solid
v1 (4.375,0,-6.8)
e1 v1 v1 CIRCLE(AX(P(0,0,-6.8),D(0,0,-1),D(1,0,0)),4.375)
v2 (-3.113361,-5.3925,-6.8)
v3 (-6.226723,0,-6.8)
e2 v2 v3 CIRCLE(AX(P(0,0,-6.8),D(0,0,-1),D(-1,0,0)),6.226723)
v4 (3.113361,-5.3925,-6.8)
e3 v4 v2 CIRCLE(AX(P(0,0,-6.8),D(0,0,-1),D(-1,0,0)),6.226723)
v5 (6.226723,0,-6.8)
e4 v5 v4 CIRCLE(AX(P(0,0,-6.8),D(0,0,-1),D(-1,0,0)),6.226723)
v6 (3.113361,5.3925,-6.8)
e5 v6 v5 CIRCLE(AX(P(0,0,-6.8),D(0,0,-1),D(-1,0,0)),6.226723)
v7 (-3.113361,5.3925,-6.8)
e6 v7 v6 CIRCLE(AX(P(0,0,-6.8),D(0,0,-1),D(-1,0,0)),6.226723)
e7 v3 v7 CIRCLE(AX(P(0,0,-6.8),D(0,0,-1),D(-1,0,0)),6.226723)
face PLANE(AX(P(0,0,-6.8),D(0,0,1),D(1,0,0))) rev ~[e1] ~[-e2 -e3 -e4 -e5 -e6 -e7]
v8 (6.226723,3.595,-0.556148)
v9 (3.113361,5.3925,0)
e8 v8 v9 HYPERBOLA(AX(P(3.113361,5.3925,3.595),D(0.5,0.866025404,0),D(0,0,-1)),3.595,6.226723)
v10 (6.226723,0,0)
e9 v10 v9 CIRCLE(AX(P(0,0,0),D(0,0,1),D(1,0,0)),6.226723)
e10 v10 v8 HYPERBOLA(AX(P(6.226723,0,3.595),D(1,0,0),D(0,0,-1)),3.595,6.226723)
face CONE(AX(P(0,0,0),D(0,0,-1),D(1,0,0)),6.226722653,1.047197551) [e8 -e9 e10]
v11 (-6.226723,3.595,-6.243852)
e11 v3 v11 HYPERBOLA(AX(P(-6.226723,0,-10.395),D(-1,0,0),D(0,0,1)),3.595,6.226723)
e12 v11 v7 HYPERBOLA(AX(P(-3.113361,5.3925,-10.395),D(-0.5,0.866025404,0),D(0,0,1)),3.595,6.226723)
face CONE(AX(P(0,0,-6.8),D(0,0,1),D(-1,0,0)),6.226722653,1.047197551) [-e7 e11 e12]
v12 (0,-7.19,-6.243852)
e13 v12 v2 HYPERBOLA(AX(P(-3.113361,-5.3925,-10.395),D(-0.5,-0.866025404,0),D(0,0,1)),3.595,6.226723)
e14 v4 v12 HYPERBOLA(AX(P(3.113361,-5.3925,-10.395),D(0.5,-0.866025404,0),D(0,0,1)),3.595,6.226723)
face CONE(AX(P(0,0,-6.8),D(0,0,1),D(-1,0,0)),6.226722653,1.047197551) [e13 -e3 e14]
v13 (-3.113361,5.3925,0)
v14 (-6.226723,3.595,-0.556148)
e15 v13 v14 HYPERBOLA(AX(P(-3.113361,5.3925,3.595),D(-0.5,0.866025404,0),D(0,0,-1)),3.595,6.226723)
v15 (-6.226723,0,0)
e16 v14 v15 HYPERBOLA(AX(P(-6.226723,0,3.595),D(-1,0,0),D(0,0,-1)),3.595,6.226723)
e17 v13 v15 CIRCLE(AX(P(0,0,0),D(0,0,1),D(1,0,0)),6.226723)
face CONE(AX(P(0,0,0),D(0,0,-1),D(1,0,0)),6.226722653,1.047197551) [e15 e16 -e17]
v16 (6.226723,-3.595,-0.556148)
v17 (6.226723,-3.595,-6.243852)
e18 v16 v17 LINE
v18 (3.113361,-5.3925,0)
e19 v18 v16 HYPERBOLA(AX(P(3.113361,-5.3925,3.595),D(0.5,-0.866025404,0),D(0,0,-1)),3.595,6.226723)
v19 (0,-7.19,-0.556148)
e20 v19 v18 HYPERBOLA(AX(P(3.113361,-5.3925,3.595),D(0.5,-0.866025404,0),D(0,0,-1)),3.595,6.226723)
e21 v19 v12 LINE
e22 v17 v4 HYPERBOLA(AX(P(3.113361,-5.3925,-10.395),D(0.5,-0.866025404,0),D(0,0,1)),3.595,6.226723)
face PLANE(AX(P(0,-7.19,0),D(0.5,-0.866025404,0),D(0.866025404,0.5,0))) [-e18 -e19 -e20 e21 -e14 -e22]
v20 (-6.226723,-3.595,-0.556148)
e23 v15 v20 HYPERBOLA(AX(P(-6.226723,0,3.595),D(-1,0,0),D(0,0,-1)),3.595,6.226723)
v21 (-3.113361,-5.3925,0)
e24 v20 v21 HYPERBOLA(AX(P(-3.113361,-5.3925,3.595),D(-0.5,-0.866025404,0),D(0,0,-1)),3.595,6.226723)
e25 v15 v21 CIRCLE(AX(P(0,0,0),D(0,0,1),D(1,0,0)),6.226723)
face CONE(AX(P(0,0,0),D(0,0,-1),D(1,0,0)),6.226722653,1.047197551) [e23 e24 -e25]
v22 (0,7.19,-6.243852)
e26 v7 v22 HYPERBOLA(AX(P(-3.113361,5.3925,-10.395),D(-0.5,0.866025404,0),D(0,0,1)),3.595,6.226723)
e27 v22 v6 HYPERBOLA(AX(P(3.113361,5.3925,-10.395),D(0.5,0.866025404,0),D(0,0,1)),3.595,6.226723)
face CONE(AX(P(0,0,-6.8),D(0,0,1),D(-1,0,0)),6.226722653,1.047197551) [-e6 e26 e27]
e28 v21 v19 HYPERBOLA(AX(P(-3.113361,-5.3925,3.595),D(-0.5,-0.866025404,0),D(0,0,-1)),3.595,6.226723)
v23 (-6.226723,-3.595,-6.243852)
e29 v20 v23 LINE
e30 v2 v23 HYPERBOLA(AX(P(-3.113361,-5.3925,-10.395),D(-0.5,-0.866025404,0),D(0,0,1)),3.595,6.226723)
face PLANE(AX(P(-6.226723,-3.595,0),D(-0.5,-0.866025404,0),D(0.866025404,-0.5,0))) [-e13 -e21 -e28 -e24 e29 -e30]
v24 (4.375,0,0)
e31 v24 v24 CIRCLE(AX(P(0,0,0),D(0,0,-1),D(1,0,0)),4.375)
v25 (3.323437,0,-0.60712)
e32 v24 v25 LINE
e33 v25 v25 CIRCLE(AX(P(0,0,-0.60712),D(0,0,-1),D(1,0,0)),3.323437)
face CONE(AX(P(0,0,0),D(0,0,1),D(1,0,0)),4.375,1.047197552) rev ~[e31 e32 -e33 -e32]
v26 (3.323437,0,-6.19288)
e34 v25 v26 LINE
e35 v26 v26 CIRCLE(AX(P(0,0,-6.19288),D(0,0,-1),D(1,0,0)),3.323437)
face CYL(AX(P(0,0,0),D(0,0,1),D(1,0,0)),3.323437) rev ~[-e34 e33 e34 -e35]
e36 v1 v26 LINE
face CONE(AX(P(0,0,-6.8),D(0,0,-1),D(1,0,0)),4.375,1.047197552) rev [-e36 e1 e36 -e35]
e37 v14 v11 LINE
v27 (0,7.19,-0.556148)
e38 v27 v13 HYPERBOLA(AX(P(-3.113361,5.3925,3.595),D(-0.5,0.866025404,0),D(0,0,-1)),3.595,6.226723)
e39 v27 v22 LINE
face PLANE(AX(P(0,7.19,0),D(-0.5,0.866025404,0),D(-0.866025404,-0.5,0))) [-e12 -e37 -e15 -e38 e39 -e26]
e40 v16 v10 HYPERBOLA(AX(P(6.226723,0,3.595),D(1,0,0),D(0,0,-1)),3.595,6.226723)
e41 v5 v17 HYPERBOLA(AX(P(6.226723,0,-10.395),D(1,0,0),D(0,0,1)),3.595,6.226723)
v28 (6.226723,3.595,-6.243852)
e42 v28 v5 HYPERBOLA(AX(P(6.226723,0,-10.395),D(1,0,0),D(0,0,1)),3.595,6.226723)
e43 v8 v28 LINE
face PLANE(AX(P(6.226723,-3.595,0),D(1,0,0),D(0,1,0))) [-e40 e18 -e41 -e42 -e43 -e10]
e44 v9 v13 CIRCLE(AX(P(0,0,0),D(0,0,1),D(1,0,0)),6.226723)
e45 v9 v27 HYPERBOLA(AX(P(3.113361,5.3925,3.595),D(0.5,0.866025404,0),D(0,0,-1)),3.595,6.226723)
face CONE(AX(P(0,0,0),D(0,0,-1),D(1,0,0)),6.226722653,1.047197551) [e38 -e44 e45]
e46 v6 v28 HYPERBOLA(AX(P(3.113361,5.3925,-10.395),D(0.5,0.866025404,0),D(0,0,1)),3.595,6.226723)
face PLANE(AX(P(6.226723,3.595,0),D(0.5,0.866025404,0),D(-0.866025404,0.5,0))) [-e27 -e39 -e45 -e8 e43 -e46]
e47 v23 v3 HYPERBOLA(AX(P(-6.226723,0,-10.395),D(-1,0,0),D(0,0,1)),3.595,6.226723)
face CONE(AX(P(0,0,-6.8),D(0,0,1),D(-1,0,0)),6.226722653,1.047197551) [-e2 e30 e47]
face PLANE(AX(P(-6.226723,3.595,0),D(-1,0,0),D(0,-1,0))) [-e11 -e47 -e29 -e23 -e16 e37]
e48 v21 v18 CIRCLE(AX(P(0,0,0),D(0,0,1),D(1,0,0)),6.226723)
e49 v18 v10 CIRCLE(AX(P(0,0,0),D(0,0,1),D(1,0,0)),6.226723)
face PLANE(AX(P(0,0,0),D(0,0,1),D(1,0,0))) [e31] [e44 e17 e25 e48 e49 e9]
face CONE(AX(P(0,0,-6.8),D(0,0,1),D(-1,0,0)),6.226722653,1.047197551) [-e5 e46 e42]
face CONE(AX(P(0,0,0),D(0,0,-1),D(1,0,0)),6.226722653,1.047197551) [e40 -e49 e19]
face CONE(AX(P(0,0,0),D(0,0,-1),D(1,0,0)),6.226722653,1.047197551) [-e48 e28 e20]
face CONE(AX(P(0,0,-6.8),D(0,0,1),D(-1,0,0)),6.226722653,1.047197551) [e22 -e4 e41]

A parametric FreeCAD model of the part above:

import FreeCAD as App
import Part
import Sketcher
from FreeCAD import Vector
Q = App.Units.Quantity


def faces_at(feature, points):
    """Names of the faces that lie closest to the given points."""
    faces = feature.Shape.Faces
    near = lambda p: min(range(len(faces)), key=lambda i: faces[i].distToShape(Part.Vertex(*p))[0])
    return sorted({f"Face{near(p) + 1}" for p in points})

doc = App.newDocument("Part")
params = doc.addObject("Spreadsheet::Sheet", "Params")
for row, (alias, value) in enumerate([
    ("sketch1_height", "7.19 mm"),
    ("sketch1_length", "7.19 mm"),
    ("pad1_length", "6.8 mm"),
    ("groove_angle", "360 deg"),
    ("sketch3_diameter", "21.57 mm"),
    ("pad2_length", "1.36 mm"),
    ("draft_angle", "60 deg"),
    ("sketch4_diameter", "21.57 mm"),
    ("pad3_length", "1.36 mm"),
    ("draft2_angle", "60 deg"),
], start=1):
    params.set(f"A{row}", alias)
    params.set(f"B{row}", "=" + value)
    params.setAlias(f"B{row}", alias)

body = doc.addObject("PartDesign::Body", "Body")

# Sketch on XY plane
sketch1 = doc.addObject("Sketcher::SketchObject", "Sketch")
body.addObject(sketch1)
sketch1.AttachmentSupport = (doc.XY_Plane, [""])
sketch1.MapMode = "FlatFace"
sketch1.addGeometry(Part.LineSegment(Vector(0, 7.2, 0), Vector(-6.2, 3.6, 0)), False)
sketch1.addGeometry(Part.LineSegment(Vector(-6.2, 3.6, 0), Vector(-6.2, -3.6, 0)), False)
sketch1.addGeometry(Part.LineSegment(Vector(-6.2, -3.6, 0), Vector(0, -7.2, 0)), False)
sketch1.addGeometry(Part.LineSegment(Vector(0, -7.2, 0), Vector(6.2, -3.6, 0)), False)
sketch1.addGeometry(Part.LineSegment(Vector(6.2, -3.6, 0), Vector(6.2, 3.6, 0)), False)
sketch1.addGeometry(Part.LineSegment(Vector(6.2, 3.6, 0), Vector(0, 7.2, 0)), False)
sketch1.addGeometry(Part.Circle(Vector(0, 0, 0), Vector(0, 0, 1), 3.3), False)
sketch1.addConstraint(Sketcher.Constraint("Coincident", 0, 2, 1, 1))
sketch1.addConstraint(Sketcher.Constraint("Coincident", 1, 2, 2, 1))
sketch1.addConstraint(Sketcher.Constraint("Coincident", 2, 2, 3, 1))
sketch1.addConstraint(Sketcher.Constraint("Coincident", 3, 2, 4, 1))
sketch1.addConstraint(Sketcher.Constraint("Coincident", 4, 2, 5, 1))
sketch1.addConstraint(Sketcher.Constraint("Coincident", 5, 2, 0, 1))
sketch1.addConstraint(Sketcher.Constraint("Vertical", 1))
sketch1.addConstraint(Sketcher.Constraint("Vertical", 4))
sketch1.addConstraint(Sketcher.Constraint("Coincident", 6, 3, -1, 1))
sketch1.addConstraint(Sketcher.Constraint("Symmetric", 0, 2, 3, 2, -1, 1))
sketch1.addConstraint(Sketcher.Constraint("Symmetric", 2, 2, 5, 2, -1, 1))
sketch1.addConstraint(Sketcher.Constraint("PointOnObject", 2, 2, -2))
sketch1.addConstraint(Sketcher.Constraint("Parallel", 2, 5))
sketch1.addConstraint(Sketcher.Constraint("Horizontal", 1, 2, 3, 2))
sketch1.addConstraint(Sketcher.Constraint("Angle", 0, Q("-150 deg")))
sketch1.addConstraint(Sketcher.Constraint("DistanceY", 1, 2, 1, 1, 7.19))
sketch1.addConstraint(Sketcher.Constraint("Distance", 0, 7.19))
sketch1.addConstraint(Sketcher.Constraint("Diameter", 6, 6.646875))
sketch1.setExpression("Constraints[15]", "Params.sketch1_height")
sketch1.setExpression("Constraints[16]", "Params.sketch1_length")
pad1 = doc.addObject("PartDesign::Pad", "Pad")
body.addObject(pad1)
pad1.Profile = sketch1
pad1.setExpression("Length", "Params.pad1_length")
pad1.Reversed = True

# Sketch on YZ plane
sketch2 = doc.addObject("Sketcher::SketchObject", "Sketch001")
body.addObject(sketch2)
sketch2.AttachmentSupport = (doc.YZ_Plane, [""])
sketch2.MapMode = "FlatFace"
sketch2.addGeometry(Part.LineSegment(Vector(3.3, -0.6, 0), Vector(4.4, 0, 0)), False)
sketch2.addGeometry(Part.LineSegment(Vector(4.4, 0, 0), Vector(0, 0, 0)), False)
sketch2.addGeometry(Part.LineSegment(Vector(0, 0, 0), Vector(0, -0.6, 0)), False)
sketch2.addGeometry(Part.LineSegment(Vector(0, -0.6, 0), Vector(3.3, -0.6, 0)), False)
sketch2.addGeometry(Part.LineSegment(Vector(0, -6.8, 0), Vector(4.4, -6.8, 0)), False)
sketch2.addGeometry(Part.LineSegment(Vector(4.4, -6.8, 0), Vector(3.3, -6.2, 0)), False)
sketch2.addGeometry(Part.LineSegment(Vector(3.3, -6.2, 0), Vector(0, -6.2, 0)), False)
sketch2.addGeometry(Part.LineSegment(Vector(0, -6.2, 0), Vector(0, -6.8, 0)), False)
sketch2.addConstraint(Sketcher.Constraint("Coincident", 0, 2, 1, 1))
sketch2.addConstraint(Sketcher.Constraint("Coincident", 1, 2, 2, 1))
sketch2.addConstraint(Sketcher.Constraint("Coincident", 2, 2, 3, 1))
sketch2.addConstraint(Sketcher.Constraint("Coincident", 3, 2, 0, 1))
sketch2.addConstraint(Sketcher.Constraint("Coincident", 4, 2, 5, 1))
sketch2.addConstraint(Sketcher.Constraint("Coincident", 5, 2, 6, 1))
sketch2.addConstraint(Sketcher.Constraint("Coincident", 6, 2, 7, 1))
sketch2.addConstraint(Sketcher.Constraint("Coincident", 7, 2, 4, 1))
sketch2.addConstraint(Sketcher.Constraint("Horizontal", 1))
sketch2.addConstraint(Sketcher.Constraint("Vertical", 2))
sketch2.addConstraint(Sketcher.Constraint("Horizontal", 3))
sketch2.addConstraint(Sketcher.Constraint("Horizontal", 4))
sketch2.addConstraint(Sketcher.Constraint("Horizontal", 6))
sketch2.addConstraint(Sketcher.Constraint("Vertical", 7))
sketch2.addConstraint(Sketcher.Constraint("Coincident", 1, 2, -1, 1))
sketch2.addConstraint(Sketcher.Constraint("PointOnObject", 6, 2, -2))
sketch2.addConstraint(Sketcher.Constraint("Vertical", 0, 2, 4, 2))
sketch2.addConstraint(Sketcher.Constraint("Vertical", 3, 2, 5, 2))
sketch2.addConstraint(Sketcher.Constraint("Equal", 2, 7))
sketch2.addConstraint(Sketcher.Constraint("Angle", 0, Q("30 deg")))
sketch2.addConstraint(Sketcher.Constraint("DistanceY", 4, 2, -1, 1, 6.8))
sketch2.addConstraint(Sketcher.Constraint("DistanceX", 1, 2, 1, 1, 4.375))
sketch2.addConstraint(Sketcher.Constraint("DistanceY", 2, 2, 2, 1, 0.60712))
groove = doc.addObject("PartDesign::Groove", "Groove")
body.addObject(groove)
groove.Profile = sketch2
groove.ReferenceAxis = (sketch2, ["V_Axis"])
groove.setExpression("Angle", "Params.groove_angle")
body2 = doc.addObject("PartDesign::Body", "Body001")

# Sketch on XY plane
sketch3 = doc.addObject("Sketcher::SketchObject", "Sketch002")
body2.addObject(sketch3)
sketch3.AttachmentSupport = (doc.getObject("XY_Plane001"), [""])
sketch3.MapMode = "FlatFace"
sketch3.addGeometry(Part.Circle(Vector(0, 0, 0), Vector(0, 0, 1), 11), False)
sketch3.addGeometry(Part.Circle(Vector(0, 0, 0), Vector(0, 0, 1), 6), False)
sketch3.addConstraint(Sketcher.Constraint("Coincident", 0, 3, -1, 1))
sketch3.addConstraint(Sketcher.Constraint("Coincident", 1, 3, -1, 1))
sketch3.addConstraint(Sketcher.Constraint("Diameter", 0, 21.57))
sketch3.addConstraint(Sketcher.Constraint("Diameter", 1, 12.453445))
sketch3.setExpression("Constraints[2]", "Params.sketch3_diameter")
pad2 = doc.addObject("PartDesign::Pad", "Pad001")
body2.addObject(pad2)
pad2.Profile = sketch3
pad2.setExpression("Length", "Params.pad2_length")
pad2.Reversed = True
doc.recompute()

draft = doc.addObject("PartDesign::Draft", "Draft")
body2.addObject(draft)
draft.Base = (pad2, faces_at(pad2, [(-10.785, 0, -0.68), (-6.227, 0, -0.68)]))
draft.NeutralPlane = (doc.getObject("XY_Plane001"), [""])
draft.setExpression("Angle", "Params.draft_angle")
draft.Reversed = True
doc.recompute()

boolean = doc.addObject("PartDesign::Boolean", "Boolean")
body.addObject(boolean)
boolean.Type = "Cut"
boolean.addObjects([body2])
body3 = doc.addObject("PartDesign::Body", "Body002")

# Sketch on XY plane
sketch4 = doc.addObject("Sketcher::SketchObject", "Sketch003")
body3.addObject(sketch4)
sketch4.AttachmentSupport = (doc.getObject("XY_Plane002"), [""])
sketch4.MapMode = "FlatFace"
sketch4.AttachmentOffset = App.Placement(Vector(0, 0, -6.8), App.Rotation())
sketch4.addGeometry(Part.Circle(Vector(0, 0, 0), Vector(0, 0, 1), 11), False)
sketch4.addGeometry(Part.Circle(Vector(0, 0, 0), Vector(0, 0, 1), 6), False)
sketch4.addConstraint(Sketcher.Constraint("Coincident", 0, 3, -1, 1))
sketch4.addConstraint(Sketcher.Constraint("Coincident", 1, 3, -1, 1))
sketch4.addConstraint(Sketcher.Constraint("Diameter", 0, 21.57))
sketch4.addConstraint(Sketcher.Constraint("Diameter", 1, 12.453445))
sketch4.setExpression("Constraints[2]", "Params.sketch4_diameter")
pad3 = doc.addObject("PartDesign::Pad", "Pad002")
body3.addObject(pad3)
pad3.Profile = sketch4
pad3.setExpression("Length", "Params.pad3_length")
doc.recompute()

datumplane = doc.addObject("PartDesign::Plane", "DatumPlane")
body3.addObject(datumplane)
datumplane.AttachmentSupport = (doc.getObject("XY_Plane002"), [""])
datumplane.MapMode = "FlatFace"
datumplane.AttachmentOffset = App.Placement(Vector(0, 0, -6.8), App.Rotation())
draft2 = doc.addObject("PartDesign::Draft", "Draft001")
body3.addObject(draft2)
draft2.Base = (pad3, faces_at(pad3, [(10.785, 0, -6.12), (6.227, 0, -6.12)]))
draft2.NeutralPlane = (datumplane, [""])
draft2.setExpression("Angle", "Params.draft2_angle")
draft2.Reversed = False
doc.recompute()

boolean2 = doc.addObject("PartDesign::Boolean", "Boolean001")
body.addObject(boolean2)
boolean2.Type = "Cut"
boolean2.addObjects([body3])

doc.recompute()
